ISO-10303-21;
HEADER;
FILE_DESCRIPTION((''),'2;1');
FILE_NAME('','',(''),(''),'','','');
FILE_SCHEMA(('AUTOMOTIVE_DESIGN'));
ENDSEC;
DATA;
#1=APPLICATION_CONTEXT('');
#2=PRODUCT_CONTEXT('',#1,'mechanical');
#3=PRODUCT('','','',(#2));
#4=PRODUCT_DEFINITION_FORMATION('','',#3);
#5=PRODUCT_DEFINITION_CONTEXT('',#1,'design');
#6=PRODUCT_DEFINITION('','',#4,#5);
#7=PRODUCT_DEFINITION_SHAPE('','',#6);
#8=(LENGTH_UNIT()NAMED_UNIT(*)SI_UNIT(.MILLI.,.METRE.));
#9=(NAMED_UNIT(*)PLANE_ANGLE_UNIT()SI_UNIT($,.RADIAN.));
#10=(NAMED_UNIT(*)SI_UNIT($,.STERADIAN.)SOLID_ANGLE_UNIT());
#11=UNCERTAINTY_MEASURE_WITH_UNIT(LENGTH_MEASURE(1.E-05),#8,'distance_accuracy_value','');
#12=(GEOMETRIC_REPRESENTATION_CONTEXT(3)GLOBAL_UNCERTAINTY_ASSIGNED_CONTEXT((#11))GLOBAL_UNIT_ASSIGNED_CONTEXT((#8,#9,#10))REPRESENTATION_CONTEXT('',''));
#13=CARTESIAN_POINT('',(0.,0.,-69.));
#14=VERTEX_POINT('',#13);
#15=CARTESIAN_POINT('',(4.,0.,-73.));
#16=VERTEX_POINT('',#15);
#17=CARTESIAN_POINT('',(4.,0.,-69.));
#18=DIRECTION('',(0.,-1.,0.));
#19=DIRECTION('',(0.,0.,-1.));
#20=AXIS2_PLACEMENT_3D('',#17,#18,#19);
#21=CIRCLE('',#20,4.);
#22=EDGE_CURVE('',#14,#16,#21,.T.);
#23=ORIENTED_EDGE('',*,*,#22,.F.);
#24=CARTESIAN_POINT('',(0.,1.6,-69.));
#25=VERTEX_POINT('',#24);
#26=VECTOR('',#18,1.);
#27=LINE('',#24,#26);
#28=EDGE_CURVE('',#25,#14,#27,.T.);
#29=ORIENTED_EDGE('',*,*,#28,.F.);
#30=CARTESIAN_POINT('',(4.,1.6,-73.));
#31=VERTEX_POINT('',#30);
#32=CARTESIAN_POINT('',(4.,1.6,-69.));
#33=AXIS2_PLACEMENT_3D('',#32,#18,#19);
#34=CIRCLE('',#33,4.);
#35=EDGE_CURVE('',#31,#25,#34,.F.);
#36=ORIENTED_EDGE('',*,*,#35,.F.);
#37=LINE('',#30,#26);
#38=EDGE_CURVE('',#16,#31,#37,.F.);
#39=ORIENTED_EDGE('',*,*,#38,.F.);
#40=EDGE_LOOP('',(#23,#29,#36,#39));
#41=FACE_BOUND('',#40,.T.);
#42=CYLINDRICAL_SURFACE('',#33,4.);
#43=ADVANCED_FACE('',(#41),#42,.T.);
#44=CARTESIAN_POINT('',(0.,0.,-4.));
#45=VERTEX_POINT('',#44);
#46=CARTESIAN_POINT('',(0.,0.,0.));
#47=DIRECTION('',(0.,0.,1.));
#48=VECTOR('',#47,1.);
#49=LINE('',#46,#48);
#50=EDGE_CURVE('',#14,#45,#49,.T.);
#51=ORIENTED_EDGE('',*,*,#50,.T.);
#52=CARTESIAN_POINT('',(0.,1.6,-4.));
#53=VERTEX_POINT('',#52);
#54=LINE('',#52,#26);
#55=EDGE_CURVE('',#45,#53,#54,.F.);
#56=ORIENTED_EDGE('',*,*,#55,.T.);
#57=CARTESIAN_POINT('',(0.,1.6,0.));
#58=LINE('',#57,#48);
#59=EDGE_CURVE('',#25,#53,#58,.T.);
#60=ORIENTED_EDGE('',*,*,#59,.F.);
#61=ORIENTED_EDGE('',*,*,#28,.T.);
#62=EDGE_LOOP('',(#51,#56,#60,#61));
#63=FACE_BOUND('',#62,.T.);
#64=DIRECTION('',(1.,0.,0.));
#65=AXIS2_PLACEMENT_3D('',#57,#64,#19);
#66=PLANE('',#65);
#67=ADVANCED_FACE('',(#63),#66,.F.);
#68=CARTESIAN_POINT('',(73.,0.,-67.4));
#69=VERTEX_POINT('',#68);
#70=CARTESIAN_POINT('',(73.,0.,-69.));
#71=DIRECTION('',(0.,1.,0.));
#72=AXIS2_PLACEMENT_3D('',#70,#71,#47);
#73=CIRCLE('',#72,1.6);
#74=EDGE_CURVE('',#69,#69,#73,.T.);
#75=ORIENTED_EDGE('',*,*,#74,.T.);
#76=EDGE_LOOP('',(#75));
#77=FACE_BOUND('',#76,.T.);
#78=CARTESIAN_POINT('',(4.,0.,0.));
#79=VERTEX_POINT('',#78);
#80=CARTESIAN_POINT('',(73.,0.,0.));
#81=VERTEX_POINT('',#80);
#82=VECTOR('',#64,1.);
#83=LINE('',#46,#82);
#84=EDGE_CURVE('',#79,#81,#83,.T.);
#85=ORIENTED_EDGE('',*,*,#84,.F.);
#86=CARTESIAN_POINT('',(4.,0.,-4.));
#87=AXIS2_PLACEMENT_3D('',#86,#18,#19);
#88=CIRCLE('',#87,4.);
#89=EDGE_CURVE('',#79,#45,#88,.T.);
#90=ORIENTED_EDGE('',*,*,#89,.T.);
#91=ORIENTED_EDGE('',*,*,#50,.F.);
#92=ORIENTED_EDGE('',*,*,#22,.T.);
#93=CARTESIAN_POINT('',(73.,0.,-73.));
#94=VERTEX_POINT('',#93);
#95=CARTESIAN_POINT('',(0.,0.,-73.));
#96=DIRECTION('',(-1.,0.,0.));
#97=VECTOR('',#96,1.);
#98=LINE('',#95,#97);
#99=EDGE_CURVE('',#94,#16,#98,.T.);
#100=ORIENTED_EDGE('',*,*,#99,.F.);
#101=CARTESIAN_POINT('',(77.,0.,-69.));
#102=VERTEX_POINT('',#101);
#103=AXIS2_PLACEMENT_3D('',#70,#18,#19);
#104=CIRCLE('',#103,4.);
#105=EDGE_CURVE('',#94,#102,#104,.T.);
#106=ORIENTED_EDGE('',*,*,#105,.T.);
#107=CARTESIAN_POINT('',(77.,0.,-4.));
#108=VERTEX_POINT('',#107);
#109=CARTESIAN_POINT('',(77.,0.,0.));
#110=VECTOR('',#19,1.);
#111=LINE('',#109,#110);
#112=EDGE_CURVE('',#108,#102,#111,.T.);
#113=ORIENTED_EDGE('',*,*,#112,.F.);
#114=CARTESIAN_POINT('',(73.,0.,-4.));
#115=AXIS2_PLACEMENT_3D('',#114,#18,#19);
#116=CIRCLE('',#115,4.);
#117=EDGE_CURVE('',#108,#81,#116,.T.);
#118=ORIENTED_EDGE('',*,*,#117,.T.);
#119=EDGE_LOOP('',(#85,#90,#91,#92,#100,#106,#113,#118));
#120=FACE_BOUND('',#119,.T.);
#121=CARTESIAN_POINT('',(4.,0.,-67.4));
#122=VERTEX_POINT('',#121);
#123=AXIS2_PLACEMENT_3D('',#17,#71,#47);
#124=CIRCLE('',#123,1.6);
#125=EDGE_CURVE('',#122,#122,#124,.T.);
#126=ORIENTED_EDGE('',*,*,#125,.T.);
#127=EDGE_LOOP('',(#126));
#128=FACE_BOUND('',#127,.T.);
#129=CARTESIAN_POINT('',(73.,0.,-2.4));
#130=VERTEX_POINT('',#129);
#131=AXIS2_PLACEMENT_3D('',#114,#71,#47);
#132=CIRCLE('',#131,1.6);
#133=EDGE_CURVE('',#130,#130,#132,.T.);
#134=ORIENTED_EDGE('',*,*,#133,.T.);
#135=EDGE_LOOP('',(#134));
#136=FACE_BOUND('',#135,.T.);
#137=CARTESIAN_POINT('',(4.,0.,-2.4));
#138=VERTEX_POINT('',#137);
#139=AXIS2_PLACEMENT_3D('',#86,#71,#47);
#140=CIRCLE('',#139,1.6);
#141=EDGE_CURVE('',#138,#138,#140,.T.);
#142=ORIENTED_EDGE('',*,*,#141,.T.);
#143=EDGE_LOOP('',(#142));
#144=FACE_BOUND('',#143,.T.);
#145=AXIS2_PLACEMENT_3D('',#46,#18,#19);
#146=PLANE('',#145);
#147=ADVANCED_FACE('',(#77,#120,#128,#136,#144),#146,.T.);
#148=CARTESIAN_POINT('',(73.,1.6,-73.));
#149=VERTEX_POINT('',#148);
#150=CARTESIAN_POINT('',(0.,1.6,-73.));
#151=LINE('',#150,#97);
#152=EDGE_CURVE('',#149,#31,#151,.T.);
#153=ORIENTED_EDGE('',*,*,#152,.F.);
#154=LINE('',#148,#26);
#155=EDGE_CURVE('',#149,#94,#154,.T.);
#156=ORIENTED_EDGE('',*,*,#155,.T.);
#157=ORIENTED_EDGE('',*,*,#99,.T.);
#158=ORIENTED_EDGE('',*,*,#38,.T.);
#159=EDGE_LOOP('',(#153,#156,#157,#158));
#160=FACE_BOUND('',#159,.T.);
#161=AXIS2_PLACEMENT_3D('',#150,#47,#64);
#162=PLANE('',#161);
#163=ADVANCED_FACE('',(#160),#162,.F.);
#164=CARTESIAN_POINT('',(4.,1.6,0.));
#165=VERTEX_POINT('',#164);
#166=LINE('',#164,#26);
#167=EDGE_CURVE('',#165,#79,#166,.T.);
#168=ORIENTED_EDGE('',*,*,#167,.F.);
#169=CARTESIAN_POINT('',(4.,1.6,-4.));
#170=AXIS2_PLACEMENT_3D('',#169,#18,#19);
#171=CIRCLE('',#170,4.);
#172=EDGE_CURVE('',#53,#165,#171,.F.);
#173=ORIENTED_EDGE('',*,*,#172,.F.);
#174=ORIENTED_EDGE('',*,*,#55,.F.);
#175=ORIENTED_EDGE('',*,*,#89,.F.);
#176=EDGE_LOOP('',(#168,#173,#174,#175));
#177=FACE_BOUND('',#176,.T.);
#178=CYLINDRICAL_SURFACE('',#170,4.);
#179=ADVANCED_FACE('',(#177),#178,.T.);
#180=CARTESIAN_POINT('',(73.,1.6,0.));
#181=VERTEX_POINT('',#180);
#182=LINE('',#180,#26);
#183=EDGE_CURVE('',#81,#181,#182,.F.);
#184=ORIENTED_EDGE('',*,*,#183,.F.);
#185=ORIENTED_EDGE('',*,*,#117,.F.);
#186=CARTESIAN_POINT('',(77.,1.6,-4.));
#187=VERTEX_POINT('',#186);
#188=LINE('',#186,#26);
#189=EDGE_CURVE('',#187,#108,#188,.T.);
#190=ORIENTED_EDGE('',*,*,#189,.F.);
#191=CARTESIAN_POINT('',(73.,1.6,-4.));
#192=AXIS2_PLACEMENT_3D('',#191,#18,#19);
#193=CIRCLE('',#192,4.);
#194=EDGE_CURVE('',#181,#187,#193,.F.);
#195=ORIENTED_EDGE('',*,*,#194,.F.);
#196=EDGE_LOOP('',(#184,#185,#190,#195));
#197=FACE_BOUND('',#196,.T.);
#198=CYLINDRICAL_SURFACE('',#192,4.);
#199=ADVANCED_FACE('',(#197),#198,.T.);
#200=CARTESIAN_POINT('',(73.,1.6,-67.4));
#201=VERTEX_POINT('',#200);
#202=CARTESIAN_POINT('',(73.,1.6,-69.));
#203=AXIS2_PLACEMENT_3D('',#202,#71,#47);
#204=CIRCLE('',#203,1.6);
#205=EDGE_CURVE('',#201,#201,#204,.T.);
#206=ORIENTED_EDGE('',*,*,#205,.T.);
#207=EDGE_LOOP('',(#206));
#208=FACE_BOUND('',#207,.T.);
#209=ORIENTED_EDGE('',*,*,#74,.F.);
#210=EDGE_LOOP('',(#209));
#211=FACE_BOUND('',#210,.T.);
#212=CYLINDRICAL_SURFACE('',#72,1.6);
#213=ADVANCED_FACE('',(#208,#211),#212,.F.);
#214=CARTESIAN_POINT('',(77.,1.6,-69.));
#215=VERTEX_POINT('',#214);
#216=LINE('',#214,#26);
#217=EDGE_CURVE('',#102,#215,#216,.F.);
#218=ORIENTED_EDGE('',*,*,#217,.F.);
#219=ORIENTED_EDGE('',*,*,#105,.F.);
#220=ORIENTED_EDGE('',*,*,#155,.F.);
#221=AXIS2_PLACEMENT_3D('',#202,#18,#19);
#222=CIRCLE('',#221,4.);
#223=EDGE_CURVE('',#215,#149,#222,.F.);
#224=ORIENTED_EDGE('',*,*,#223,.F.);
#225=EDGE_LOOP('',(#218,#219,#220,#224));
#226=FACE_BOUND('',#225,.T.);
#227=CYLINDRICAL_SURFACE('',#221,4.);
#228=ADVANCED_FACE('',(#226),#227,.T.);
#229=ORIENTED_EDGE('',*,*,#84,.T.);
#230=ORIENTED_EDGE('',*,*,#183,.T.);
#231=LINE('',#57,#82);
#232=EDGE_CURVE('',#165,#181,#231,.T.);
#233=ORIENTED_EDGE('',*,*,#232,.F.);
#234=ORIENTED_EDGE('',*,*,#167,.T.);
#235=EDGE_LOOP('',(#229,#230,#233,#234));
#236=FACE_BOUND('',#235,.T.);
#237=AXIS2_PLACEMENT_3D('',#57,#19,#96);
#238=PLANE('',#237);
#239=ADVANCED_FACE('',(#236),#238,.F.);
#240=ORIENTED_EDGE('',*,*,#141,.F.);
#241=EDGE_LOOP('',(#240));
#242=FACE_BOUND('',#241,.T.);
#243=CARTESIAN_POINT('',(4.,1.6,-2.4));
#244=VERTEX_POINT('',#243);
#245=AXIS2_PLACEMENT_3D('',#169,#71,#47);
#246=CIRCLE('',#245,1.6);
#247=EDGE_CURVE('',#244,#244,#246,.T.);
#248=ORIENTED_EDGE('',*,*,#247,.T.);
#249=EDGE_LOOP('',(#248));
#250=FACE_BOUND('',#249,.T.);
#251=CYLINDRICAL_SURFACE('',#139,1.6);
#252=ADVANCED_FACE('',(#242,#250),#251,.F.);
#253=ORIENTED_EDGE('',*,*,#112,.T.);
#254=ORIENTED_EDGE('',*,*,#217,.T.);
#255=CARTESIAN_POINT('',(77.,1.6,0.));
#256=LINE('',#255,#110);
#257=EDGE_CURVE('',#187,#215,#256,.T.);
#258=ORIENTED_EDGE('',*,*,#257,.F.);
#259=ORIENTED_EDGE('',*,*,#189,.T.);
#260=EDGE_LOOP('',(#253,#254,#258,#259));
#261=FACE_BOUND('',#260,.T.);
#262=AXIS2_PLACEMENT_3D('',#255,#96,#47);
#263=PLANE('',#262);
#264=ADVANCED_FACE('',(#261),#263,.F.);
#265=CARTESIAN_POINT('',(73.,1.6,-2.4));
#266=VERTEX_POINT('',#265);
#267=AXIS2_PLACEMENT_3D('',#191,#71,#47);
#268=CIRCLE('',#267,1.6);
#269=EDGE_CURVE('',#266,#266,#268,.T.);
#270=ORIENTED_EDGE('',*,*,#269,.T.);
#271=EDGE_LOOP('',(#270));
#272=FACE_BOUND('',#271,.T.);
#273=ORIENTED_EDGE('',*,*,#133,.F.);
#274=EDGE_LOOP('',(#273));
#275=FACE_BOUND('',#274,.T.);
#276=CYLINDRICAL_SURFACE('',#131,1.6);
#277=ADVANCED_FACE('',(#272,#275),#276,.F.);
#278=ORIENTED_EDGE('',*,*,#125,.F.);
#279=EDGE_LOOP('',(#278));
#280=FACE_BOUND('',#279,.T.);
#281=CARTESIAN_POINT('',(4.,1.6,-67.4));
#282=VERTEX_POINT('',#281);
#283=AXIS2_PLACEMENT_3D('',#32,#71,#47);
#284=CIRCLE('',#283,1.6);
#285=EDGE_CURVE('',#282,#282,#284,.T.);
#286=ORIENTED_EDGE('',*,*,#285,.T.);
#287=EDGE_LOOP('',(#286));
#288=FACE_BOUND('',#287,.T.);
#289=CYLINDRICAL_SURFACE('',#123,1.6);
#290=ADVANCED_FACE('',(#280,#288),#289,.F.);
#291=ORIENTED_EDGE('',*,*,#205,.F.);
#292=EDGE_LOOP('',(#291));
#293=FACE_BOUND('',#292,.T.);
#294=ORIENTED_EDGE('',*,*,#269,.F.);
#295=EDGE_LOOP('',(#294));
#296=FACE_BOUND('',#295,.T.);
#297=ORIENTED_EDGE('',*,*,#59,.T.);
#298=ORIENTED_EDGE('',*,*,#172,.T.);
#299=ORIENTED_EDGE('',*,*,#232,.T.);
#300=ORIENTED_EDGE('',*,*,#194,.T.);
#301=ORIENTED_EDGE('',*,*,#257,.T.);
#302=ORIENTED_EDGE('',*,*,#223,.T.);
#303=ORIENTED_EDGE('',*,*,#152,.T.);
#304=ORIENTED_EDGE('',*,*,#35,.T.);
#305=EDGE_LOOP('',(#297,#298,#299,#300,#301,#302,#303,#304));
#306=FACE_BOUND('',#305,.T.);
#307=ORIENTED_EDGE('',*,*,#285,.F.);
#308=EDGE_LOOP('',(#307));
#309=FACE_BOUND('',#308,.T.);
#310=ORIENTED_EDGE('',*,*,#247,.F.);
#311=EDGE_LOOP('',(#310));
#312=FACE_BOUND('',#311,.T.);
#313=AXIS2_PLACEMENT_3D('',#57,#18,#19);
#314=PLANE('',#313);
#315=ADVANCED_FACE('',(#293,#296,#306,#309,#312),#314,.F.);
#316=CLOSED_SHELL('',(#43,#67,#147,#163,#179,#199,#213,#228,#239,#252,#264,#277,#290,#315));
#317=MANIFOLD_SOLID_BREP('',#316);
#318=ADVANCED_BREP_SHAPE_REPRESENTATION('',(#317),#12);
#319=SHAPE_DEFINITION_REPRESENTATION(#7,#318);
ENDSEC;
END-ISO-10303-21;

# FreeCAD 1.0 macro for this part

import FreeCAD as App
import Part
import Sketcher

V = App.Vector


def edges_at(feature, points):
    """Names of the edges that pass closest to the given points."""
    edges = feature.Shape.Edges
    near = lambda p: min(range(len(edges)), key=lambda i: edges[i].distToShape(Part.Vertex(*p))[0])
    return sorted({f"Edge{near(p) + 1}" for p in points})

doc = App.newDocument("Part")
body = doc.addObject("PartDesign::Body", "Body")

sketch1 = body.newObject("Sketcher::SketchObject", "Sketch")
sketch1.AttachmentSupport = (doc.getObject("XZ_Plane"), [""])
sketch1.MapMode = "FlatFace"
sketch1.addGeometry([
    Part.LineSegment(V(0, -73, 0), V(0, 0, 0)),
    Part.LineSegment(V(0, 0, 0), V(77, 0, 0)),
    Part.LineSegment(V(77, 0, 0), V(77, -73, 0)),
    Part.LineSegment(V(77, -73, 0), V(0, -73, 0)),
], False)
sketch1.addConstraint([
    Sketcher.Constraint("Coincident", 0, 2, 1, 1),
    Sketcher.Constraint("Coincident", 1, 2, 2, 1),
    Sketcher.Constraint("Coincident", 2, 2, 3, 1),
    Sketcher.Constraint("Coincident", 3, 2, 0, 1),
    Sketcher.Constraint("Vertical", 0),
    Sketcher.Constraint("Horizontal", 1),
    Sketcher.Constraint("Vertical", 2),
    Sketcher.Constraint("Horizontal", 3),
    Sketcher.Constraint("Coincident", 0, 2, -1, 1),
    Sketcher.Constraint("DistanceX", 1, 1, 1, 2, 77.0),
    Sketcher.Constraint("DistanceY", 0, 1, 0, 2, 73.0),
])
pad1 = body.newObject("PartDesign::Pad", "Pad")
pad1.Profile = sketch1
pad1.Length = 1.6
pad1.Reversed = True
doc.recompute()

fillet = body.newObject("PartDesign::Fillet", "Fillet")
fillet.Base = (pad1, edges_at(pad1, [
    (0, 0.8, -73),
    (77, 0.8, -73),
    (77, 0.8, 0),
    (0, 0.8, 0),
]))
fillet.Radius = 4

sketch2 = body.newObject("Sketcher::SketchObject", "Sketch001")
sketch2.AttachmentSupport = (doc.getObject("XZ_Plane"), [""])
sketch2.MapMode = "FlatFace"
sketch2.AttachmentOffset = App.Placement(V(0, 0, -1.6), App.Rotation())
sketch2.addGeometry([
    Part.Circle(V(4, -69, 0), V(0, 0, 1), 1.6),
    Part.Circle(V(73, -69, 0), V(0, 0, 1), 1.6),
    Part.Circle(V(73, -4, 0), V(0, 0, 1), 1.6),
    Part.Circle(V(4, -4, 0), V(0, 0, 1), 1.6),
], False)
sketch2.addConstraint([
    Sketcher.Constraint("Equal", 0, 1),
    Sketcher.Constraint("Equal", 1, 2),
    Sketcher.Constraint("Equal", 2, 3),
    Sketcher.Constraint("Horizontal", 0, 3, 1, 3),
    Sketcher.Constraint("Horizontal", 2, 3, 3, 3),
    Sketcher.Constraint("Vertical", 1, 3, 2, 3),
    Sketcher.Constraint("Vertical", 0, 3, 3, 3),
    Sketcher.Constraint("Diameter", 0, 3.2),
    Sketcher.Constraint("DistanceX", -1, 1, 0, 3, 4.0),
    Sketcher.Constraint("DistanceY", 0, 3, -1, 1, 69.0),
    Sketcher.Constraint("DistanceX", -1, 1, 1, 3, 73.0),
    Sketcher.Constraint("DistanceY", 2, 3, -1, 1, 4.0),
])
pocket1 = body.newObject("PartDesign::Pocket", "Pocket")
pocket1.Profile = sketch2
pocket1.Length = 1.6
pocket1.Reversed = True

doc.recompute()
